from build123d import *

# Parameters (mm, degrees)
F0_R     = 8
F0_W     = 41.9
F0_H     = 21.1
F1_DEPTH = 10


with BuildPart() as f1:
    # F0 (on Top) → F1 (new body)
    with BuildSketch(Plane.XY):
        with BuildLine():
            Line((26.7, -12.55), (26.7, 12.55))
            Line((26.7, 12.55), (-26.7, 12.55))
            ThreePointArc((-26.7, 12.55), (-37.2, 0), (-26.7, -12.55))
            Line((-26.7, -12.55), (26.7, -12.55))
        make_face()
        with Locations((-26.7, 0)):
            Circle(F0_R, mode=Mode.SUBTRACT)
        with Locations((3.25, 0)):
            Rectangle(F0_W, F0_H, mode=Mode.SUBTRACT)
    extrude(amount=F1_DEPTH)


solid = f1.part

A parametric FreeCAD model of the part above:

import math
import FreeCAD as App
import Part
import Sketcher

V = App.Vector
Q = App.Units.Quantity

doc = App.newDocument("Part")
body = doc.addObject("PartDesign::Body", "Body")

# Sketch on XY plane
sketch1 = body.newObject("Sketcher::SketchObject", "Sketch")
sketch1.AttachmentSupport = (doc.getObject("XY_Plane"), [""])
sketch1.MapMode = "FlatFace"
sketch1.addGeometry(Part.LineSegment(V(26.7, -12.55, 0), V(26.7, 12.55, 0)), False)
sketch1.addGeometry(Part.LineSegment(V(26.7, 12.55, 0), V(-26.7, 12.55, 0)), False)
sketch1.addGeometry(Part.ArcOfCircle(Part.Circle(V(-24.449881, 0, 0), V(0, 0, 1), 12.750119), math.radians(100.164696), math.radians(259.835304)), False)
sketch1.addGeometry(Part.LineSegment(V(-26.7, -12.55, 0), V(26.7, -12.55, 0)), False)
sketch1.addGeometry(Part.Circle(V(-26.7, 0, 0), V(0, 0, 1), 8), False)
sketch1.addGeometry(Part.LineSegment(V(24.2, -10.55, 0), V(-17.7, -10.55, 0)), False)
sketch1.addGeometry(Part.LineSegment(V(-17.7, -10.55, 0), V(-17.7, 10.55, 0)), False)
sketch1.addGeometry(Part.LineSegment(V(-17.7, 10.55, 0), V(24.2, 10.55, 0)), False)
sketch1.addGeometry(Part.LineSegment(V(24.2, 10.55, 0), V(24.2, -10.55, 0)), False)
sketch1.addConstraint(Sketcher.Constraint("Coincident", 0, 2, 1, 1))
sketch1.addConstraint(Sketcher.Constraint("Coincident", 1, 2, 2, 1))
sketch1.addConstraint(Sketcher.Constraint("Coincident", 2, 2, 3, 1))
sketch1.addConstraint(Sketcher.Constraint("Coincident", 3, 2, 0, 1))
sketch1.addConstraint(Sketcher.Constraint("Coincident", 5, 2, 6, 1))
sketch1.addConstraint(Sketcher.Constraint("Coincident", 6, 2, 7, 1))
sketch1.addConstraint(Sketcher.Constraint("Coincident", 7, 2, 8, 1))
sketch1.addConstraint(Sketcher.Constraint("Coincident", 8, 2, 5, 1))
sketch1.addConstraint(Sketcher.Constraint("Vertical", 0))
sketch1.addConstraint(Sketcher.Constraint("Horizontal", 1))
sketch1.addConstraint(Sketcher.Constraint("Horizontal", 3))
sketch1.addConstraint(Sketcher.Constraint("Horizontal", 5))
sketch1.addConstraint(Sketcher.Constraint("Vertical", 6))
sketch1.addConstraint(Sketcher.Constraint("Horizontal", 7))
sketch1.addConstraint(Sketcher.Constraint("Vertical", 8))
sketch1.addConstraint(Sketcher.Constraint("Symmetric", 0, 2, 2, 2, -1, 1))
sketch1.addConstraint(Sketcher.Constraint("PointOnObject", 2, 3, -1))
sketch1.addConstraint(Sketcher.Constraint("PointOnObject", 4, 3, -1))
sketch1.addConstraint(Sketcher.Constraint("Vertical", 4, 3, 1, 2))
sketch1.addConstraint(Sketcher.Constraint("Diameter", 4, Q("16 mm")))
sketch1.addConstraint(Sketcher.Constraint("DistanceX", 1, 2, 1, 1, Q("53.4 mm")))
sketch1.addConstraint(Sketcher.Constraint("DistanceX", 5, 2, 5, 1, Q("41.9 mm")))
sketch1.addConstraint(Sketcher.Constraint("DistanceY", 0, 1, 0, 2, Q("25.1 mm")))
sketch1.addConstraint(Sketcher.Constraint("DistanceY", 6, 1, 6, 2, Q("21.1 mm")))
sketch1.addConstraint(Sketcher.Constraint("DistanceX", 2, 2, 5, 2, Q("9 mm")))
sketch1.addConstraint(Sketcher.Constraint("DistanceY", 2, 2, 5, 2, Q("2 mm")))
sketch1.addConstraint(Sketcher.Constraint("Radius", 2, Q("12.750119 mm")))
pad1 = body.newObject("PartDesign::Pad", "Pad")
pad1.Profile = sketch1
pad1.Length = 10

doc.recompute()
